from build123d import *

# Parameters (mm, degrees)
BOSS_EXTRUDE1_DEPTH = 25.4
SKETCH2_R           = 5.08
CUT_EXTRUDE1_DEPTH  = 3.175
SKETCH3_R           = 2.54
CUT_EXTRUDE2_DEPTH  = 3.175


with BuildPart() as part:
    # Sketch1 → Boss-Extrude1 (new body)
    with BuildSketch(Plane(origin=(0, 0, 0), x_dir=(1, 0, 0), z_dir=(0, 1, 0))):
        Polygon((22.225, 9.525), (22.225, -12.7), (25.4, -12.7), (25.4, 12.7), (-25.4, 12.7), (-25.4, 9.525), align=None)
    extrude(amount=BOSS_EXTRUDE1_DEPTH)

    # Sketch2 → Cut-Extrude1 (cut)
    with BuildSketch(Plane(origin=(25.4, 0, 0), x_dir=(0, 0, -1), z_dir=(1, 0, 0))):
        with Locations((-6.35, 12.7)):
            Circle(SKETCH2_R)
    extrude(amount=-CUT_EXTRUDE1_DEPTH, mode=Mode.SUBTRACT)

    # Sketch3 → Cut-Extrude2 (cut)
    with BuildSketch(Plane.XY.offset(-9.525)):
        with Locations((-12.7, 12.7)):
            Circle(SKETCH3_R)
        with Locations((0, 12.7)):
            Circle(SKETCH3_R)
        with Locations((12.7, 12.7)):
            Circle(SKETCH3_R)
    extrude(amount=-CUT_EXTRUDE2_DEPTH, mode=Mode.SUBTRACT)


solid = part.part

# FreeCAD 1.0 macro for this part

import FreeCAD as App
import Part
import Sketcher
from FreeCAD import Vector
Q = App.Units.Quantity

doc = App.newDocument("Part")
body = doc.addObject("PartDesign::Body", "Body")

sketch1 = body.newObject("Sketcher::SketchObject", "Sketch")
sketch1.AttachmentSupport = (doc.getObject("XZ_Plane"), [""])
sketch1.MapMode = "FlatFace"
sketch1.addGeometry([
    Part.LineSegment(Vector(22.2, -9.5, 0), Vector(22.2, 12.7, 0)),
    Part.LineSegment(Vector(22.2, 12.7, 0), Vector(25.4, 12.7, 0)),
    Part.LineSegment(Vector(25.4, 12.7, 0), Vector(25.4, -12.7, 0)),
    Part.LineSegment(Vector(25.4, -12.7, 0), Vector(-25.4, -12.7, 0)),
    Part.LineSegment(Vector(-25.4, -12.7, 0), Vector(-25.4, -9.5, 0)),
    Part.LineSegment(Vector(-25.4, -9.5, 0), Vector(22.2, -9.5, 0)),
], False)
sketch1.addConstraint([
    Sketcher.Constraint("Coincident", 0, 2, 1, 1),
    Sketcher.Constraint("Coincident", 1, 2, 2, 1),
    Sketcher.Constraint("Coincident", 2, 2, 3, 1),
    Sketcher.Constraint("Coincident", 3, 2, 4, 1),
    Sketcher.Constraint("Coincident", 4, 2, 5, 1),
    Sketcher.Constraint("Coincident", 5, 2, 0, 1),
    Sketcher.Constraint("Vertical", 0),
    Sketcher.Constraint("Horizontal", 1),
    Sketcher.Constraint("Vertical", 2),
    Sketcher.Constraint("Horizontal", 3),
    Sketcher.Constraint("Vertical", 4),
    Sketcher.Constraint("Horizontal", 5),
    Sketcher.Constraint("Symmetric", 1, 2, 3, 2, -1, 1),
    Sketcher.Constraint("Equal", 1, 4),
    Sketcher.Constraint("DistanceX", 3, 2, 3, 1, Q("2 in")),
    Sketcher.Constraint("DistanceY", 2, 2, 2, 1, Q("1 in")),
    Sketcher.Constraint("DistanceX", 1, 1, 1, 2, Q("0.125 in")),
])
pad1 = body.newObject("PartDesign::Pad", "Pad")
pad1.Profile = sketch1
pad1.Length = Q("1 in")
pad1.Reversed = True

sketch2 = body.newObject("Sketcher::SketchObject", "Sketch001")
sketch2.AttachmentSupport = (doc.getObject("YZ_Plane"), [""])
sketch2.MapMode = "FlatFace"
sketch2.AttachmentOffset = App.Placement(Vector(0, 0, 1 * 25.4), App.Rotation())
sketch2.addGeometry(Part.Circle(Vector(13, 6, 0), Vector(0, 0, 1), 5), False)
sketch2.addConstraint([
    Sketcher.Constraint("Diameter", 0, Q("0.4 in")),
    Sketcher.Constraint("DistanceX", -1, 1, 0, 3, Q("0.5 in")),
    Sketcher.Constraint("DistanceY", -1, 1, 0, 3, Q("0.25 in")),
])
pocket1 = body.newObject("PartDesign::Pocket", "Pocket")
pocket1.Profile = sketch2
pocket1.Length = Q("0.125 in")

sketch3 = body.newObject("Sketcher::SketchObject", "Sketch002")
sketch3.AttachmentSupport = (doc.getObject("XY_Plane"), [""])
sketch3.MapMode = "FlatFace"
sketch3.AttachmentOffset = App.Placement(Vector(0, 0, -0.375 * 25.4), App.Rotation())
sketch3.addGeometry([
    Part.Circle(Vector(-12.7, 12.7, 0), Vector(0, 0, 1), 2.5),
    Part.Circle(Vector(0, 12.7, 0), Vector(0, 0, 1), 2.5),
    Part.Circle(Vector(12.7, 12.7, 0), Vector(0, 0, 1), 2.5),
], False)
sketch3.addConstraint([
    Sketcher.Constraint("Equal", 0, 1),
    Sketcher.Constraint("Equal", 1, 2),
    Sketcher.Constraint("Symmetric", 0, 3, 2, 3, -2),
    Sketcher.Constraint("PointOnObject", 1, 3, -2),
    Sketcher.Constraint("Horizontal", 0, 3, 1, 3),
    Sketcher.Constraint("Diameter", 0, Q("0.2 in")),
    Sketcher.Constraint("DistanceX", 0, 3, 2, 3, Q("1 in")),
    Sketcher.Constraint("DistanceY", -1, 1, 0, 3, Q("0.5 in")),
])
pocket2 = body.newObject("PartDesign::Pocket", "Pocket001")
pocket2.Profile = sketch3
pocket2.Length = Q("0.125 in")

doc.recompute()
